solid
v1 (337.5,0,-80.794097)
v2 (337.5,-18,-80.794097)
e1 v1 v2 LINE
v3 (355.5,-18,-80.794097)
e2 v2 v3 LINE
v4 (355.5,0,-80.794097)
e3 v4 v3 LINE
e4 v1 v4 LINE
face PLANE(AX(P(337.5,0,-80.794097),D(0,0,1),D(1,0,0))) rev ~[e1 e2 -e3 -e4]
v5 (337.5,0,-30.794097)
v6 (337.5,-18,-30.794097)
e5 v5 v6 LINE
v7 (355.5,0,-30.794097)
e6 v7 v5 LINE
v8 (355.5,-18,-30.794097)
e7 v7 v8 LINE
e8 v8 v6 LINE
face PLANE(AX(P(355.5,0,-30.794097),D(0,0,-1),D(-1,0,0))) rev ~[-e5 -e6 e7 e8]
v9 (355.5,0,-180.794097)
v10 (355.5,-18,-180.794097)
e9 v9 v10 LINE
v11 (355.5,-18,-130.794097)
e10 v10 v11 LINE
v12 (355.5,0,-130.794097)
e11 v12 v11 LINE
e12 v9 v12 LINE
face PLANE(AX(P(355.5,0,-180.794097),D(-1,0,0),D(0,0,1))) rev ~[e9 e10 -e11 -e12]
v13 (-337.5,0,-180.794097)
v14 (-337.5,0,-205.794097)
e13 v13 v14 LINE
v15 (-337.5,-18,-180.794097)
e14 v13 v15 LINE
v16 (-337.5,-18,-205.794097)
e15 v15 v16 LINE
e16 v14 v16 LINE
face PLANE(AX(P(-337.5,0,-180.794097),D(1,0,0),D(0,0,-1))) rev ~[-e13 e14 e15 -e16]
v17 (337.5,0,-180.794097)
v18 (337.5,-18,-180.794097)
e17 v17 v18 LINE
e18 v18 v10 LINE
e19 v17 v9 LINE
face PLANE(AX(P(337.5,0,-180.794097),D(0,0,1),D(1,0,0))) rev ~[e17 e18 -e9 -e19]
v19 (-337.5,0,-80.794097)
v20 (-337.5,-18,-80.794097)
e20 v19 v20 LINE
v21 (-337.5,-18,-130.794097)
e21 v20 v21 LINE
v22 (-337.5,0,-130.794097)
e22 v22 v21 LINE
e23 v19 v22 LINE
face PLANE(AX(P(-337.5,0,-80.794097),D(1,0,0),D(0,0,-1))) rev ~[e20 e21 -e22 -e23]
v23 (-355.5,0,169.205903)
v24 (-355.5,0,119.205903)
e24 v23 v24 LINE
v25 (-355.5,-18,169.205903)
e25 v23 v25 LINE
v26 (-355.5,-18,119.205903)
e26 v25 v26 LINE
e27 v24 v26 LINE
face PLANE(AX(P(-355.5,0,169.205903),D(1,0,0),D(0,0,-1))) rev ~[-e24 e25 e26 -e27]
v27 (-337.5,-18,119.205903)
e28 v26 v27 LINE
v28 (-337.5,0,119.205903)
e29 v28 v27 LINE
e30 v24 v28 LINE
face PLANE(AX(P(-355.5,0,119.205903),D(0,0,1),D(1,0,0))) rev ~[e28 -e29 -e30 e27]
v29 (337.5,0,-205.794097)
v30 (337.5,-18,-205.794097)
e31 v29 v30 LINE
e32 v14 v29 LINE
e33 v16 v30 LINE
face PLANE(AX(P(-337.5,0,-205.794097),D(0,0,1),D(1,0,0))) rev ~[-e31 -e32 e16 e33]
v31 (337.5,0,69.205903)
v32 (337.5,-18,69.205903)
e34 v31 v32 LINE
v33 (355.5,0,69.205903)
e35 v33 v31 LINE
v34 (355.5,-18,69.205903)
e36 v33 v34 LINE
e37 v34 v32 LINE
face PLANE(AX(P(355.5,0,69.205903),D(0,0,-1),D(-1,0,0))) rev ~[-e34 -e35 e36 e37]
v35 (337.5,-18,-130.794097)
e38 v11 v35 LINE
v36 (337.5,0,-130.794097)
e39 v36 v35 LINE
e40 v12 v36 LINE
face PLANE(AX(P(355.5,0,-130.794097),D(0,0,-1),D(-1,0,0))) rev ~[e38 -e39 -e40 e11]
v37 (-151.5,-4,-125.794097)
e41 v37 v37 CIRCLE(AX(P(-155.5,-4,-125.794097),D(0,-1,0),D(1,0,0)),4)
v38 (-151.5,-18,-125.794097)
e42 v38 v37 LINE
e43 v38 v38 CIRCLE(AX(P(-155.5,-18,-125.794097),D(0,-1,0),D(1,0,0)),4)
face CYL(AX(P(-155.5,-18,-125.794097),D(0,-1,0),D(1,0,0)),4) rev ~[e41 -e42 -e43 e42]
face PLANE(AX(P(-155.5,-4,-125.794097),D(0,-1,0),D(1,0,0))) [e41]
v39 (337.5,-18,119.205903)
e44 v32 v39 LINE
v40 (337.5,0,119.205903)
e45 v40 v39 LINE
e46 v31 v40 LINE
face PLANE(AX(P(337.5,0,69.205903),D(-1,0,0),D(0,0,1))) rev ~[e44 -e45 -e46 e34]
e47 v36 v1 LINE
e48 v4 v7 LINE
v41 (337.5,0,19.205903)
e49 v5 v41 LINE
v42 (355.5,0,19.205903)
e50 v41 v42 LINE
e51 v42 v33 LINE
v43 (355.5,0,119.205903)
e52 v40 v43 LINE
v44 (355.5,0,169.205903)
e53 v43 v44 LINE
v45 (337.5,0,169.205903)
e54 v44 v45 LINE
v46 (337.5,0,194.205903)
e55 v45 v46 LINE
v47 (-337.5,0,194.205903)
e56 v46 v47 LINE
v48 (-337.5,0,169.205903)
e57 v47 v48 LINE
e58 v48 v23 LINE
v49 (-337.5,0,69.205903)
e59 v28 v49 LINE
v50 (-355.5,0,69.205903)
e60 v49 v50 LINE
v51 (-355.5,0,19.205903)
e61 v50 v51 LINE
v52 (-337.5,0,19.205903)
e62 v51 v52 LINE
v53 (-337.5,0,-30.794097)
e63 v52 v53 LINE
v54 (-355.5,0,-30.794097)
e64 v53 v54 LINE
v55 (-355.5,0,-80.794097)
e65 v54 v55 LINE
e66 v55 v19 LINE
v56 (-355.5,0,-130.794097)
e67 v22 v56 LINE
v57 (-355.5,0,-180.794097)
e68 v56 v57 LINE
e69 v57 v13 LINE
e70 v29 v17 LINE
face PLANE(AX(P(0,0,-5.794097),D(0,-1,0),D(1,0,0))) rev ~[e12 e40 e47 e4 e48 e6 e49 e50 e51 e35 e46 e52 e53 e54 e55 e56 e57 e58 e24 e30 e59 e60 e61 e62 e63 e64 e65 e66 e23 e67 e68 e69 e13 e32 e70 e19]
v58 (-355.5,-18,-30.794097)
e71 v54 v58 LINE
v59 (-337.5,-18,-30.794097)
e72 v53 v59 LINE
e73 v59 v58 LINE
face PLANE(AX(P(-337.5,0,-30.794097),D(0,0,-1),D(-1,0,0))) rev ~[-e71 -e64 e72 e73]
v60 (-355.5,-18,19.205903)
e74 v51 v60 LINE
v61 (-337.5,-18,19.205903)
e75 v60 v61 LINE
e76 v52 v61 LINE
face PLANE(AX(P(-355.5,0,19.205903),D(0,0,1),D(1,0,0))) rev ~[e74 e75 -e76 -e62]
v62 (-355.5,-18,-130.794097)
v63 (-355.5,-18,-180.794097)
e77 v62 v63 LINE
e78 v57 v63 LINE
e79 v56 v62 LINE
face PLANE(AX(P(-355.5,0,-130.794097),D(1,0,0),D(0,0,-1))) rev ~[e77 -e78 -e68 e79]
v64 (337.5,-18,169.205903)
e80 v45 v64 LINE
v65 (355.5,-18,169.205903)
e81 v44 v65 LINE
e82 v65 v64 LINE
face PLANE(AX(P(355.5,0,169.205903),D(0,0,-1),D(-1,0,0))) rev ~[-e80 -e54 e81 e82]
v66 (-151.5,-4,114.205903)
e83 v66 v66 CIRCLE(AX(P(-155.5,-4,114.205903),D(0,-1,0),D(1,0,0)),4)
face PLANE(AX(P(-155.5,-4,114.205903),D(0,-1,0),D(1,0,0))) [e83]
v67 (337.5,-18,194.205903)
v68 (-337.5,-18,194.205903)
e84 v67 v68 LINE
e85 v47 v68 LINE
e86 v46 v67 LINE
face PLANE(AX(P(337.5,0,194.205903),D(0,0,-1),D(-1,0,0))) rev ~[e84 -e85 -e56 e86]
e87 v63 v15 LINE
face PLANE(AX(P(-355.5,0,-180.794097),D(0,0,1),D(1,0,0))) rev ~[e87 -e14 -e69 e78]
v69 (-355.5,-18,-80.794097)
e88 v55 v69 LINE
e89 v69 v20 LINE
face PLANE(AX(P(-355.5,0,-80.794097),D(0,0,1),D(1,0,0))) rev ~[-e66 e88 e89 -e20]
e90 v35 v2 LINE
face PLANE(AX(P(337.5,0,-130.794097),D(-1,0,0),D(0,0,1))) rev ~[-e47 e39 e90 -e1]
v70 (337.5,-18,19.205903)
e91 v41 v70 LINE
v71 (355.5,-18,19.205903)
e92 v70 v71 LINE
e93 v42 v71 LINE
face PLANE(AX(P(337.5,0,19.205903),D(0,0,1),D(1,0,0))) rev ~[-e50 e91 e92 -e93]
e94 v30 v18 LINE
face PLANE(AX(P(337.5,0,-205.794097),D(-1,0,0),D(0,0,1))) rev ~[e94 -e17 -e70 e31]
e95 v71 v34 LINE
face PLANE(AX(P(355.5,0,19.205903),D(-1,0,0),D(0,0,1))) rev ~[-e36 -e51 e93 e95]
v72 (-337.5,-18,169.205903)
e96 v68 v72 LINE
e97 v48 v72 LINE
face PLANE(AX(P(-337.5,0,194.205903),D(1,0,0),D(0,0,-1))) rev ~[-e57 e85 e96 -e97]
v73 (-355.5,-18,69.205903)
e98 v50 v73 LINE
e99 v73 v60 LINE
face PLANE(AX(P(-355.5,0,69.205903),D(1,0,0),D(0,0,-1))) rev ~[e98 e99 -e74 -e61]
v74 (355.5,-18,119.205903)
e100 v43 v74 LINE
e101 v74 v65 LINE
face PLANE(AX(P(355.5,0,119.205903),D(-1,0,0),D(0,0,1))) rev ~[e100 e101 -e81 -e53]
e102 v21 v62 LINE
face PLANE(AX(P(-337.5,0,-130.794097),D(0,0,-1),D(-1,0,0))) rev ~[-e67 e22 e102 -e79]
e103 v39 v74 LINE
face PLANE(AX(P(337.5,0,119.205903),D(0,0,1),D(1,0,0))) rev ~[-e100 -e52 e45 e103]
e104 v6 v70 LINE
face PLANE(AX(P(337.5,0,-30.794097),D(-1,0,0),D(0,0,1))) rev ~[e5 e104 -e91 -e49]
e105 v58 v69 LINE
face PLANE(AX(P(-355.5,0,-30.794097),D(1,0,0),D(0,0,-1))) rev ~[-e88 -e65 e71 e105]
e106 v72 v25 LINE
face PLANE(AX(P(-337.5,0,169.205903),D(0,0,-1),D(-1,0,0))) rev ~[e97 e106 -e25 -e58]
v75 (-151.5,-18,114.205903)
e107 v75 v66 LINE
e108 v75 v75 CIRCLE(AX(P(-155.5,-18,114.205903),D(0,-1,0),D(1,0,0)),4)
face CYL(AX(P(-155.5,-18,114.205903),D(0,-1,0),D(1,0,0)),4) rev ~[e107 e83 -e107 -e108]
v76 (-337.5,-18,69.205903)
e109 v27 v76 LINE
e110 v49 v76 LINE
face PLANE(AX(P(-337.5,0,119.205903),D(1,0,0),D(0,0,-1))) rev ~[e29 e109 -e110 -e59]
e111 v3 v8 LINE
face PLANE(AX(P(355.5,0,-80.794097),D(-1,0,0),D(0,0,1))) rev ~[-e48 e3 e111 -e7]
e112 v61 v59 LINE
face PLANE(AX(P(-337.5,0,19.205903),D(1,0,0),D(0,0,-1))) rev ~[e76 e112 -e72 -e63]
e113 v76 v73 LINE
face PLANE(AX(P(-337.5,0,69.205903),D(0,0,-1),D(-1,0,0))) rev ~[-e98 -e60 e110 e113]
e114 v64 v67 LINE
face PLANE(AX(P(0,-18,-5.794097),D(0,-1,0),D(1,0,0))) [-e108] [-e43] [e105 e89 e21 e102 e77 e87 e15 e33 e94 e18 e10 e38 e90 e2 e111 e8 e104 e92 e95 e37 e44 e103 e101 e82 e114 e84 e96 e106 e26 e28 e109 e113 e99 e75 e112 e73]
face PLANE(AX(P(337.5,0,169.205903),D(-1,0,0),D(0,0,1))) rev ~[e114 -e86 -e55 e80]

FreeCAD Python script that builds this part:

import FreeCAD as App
import Part
import Sketcher
from FreeCAD import Vector


def add_polygon(sketch, points):
    """Adds a closed chain of lines whose ends are joined by coincident constraints."""
    first, n = sketch.GeometryCount, len(points)
    for a, b in zip(points, points[1:] + points[:1]):
        sketch.addGeometry(Part.LineSegment(App.Vector(*a, 0), App.Vector(*b, 0)), False)
    for i in range(n):
        sketch.addConstraint(Sketcher.Constraint("Coincident", first + i, 2, first + (i + 1) % n, 1))

doc = App.newDocument("Part")
body = doc.addObject("PartDesign::Body", "Body")

sketch1 = body.newObject("Sketcher::SketchObject", "Sketch")
sketch1.AttachmentSupport = (doc.getObject("XZ_Plane"), [""])
sketch1.MapMode = "FlatFace"
add_polygon(sketch1, [(337.5, 194.205903), (-337.5, 194.205903), (-337.5, 169.205903), (-355.5, 169.205903), (-355.5, 119.205903), (-337.5, 119.205903), (-337.5, 69.205903), (-355.5, 69.205903), (-355.5, 19.205903), (-337.5, 19.205903), (-337.5, -30.794097), (-355.5, -30.794097), (-355.5, -80.794097), (-337.5, -80.794097), (-337.5, -130.794097), (-355.5, -130.794097), (-355.5, -180.794097), (-337.5, -180.794097), (-337.5, -205.794097), (337.5, -205.794097), (337.5, -180.794097), (355.5, -180.794097), (355.5, -130.794097), (337.5, -130.794097), (337.5, -80.794097), (355.5, -80.794097), (355.5, -30.794097), (337.5, -30.794097), (337.5, 19.205903), (355.5, 19.205903), (355.5, 69.205903), (337.5, 69.205903), (337.5, 119.205903), (355.5, 119.205903), (355.5, 169.205903), (337.5, 169.205903)])
sketch1.addConstraint([
    Sketcher.Constraint("Horizontal", 0),
    Sketcher.Constraint("Vertical", 1),
    Sketcher.Constraint("Horizontal", 2),
    Sketcher.Constraint("Vertical", 3),
    Sketcher.Constraint("Horizontal", 4),
    Sketcher.Constraint("Vertical", 5),
    Sketcher.Constraint("Horizontal", 6),
    Sketcher.Constraint("Vertical", 7),
    Sketcher.Constraint("Horizontal", 8),
    Sketcher.Constraint("Vertical", 9),
    Sketcher.Constraint("Horizontal", 10),
    Sketcher.Constraint("Vertical", 11),
    Sketcher.Constraint("Horizontal", 12),
    Sketcher.Constraint("Vertical", 13),
    Sketcher.Constraint("Horizontal", 14),
    Sketcher.Constraint("Vertical", 15),
    Sketcher.Constraint("Horizontal", 16),
    Sketcher.Constraint("Vertical", 17),
    Sketcher.Constraint("Horizontal", 18),
    Sketcher.Constraint("Vertical", 19),
    Sketcher.Constraint("Horizontal", 20),
    Sketcher.Constraint("Vertical", 21),
    Sketcher.Constraint("Horizontal", 22),
    Sketcher.Constraint("Vertical", 23),
    Sketcher.Constraint("Horizontal", 24),
    Sketcher.Constraint("Vertical", 25),
    Sketcher.Constraint("Horizontal", 26),
    Sketcher.Constraint("Vertical", 27),
    Sketcher.Constraint("Horizontal", 28),
    Sketcher.Constraint("Vertical", 29),
    Sketcher.Constraint("Horizontal", 30),
    Sketcher.Constraint("Vertical", 31),
    Sketcher.Constraint("Horizontal", 32),
    Sketcher.Constraint("Vertical", 33),
    Sketcher.Constraint("Horizontal", 34),
    Sketcher.Constraint("Vertical", 35),
    Sketcher.Constraint("Symmetric", 16, 2, 19, 2, -2),
    Sketcher.Constraint("Symmetric", 14, 2, 21, 2, -2),
    Sketcher.Constraint("Symmetric", 12, 2, 23, 2, -2),
    Sketcher.Constraint("Symmetric", 10, 2, 25, 2, -2),
    Sketcher.Constraint("Symmetric", 8, 2, 27, 2, -2),
    Sketcher.Constraint("Symmetric", 6, 2, 29, 2, -2),
    Sketcher.Constraint("Symmetric", 4, 2, 31, 2, -2),
    Sketcher.Constraint("Symmetric", 2, 2, 33, 2, -2),
    Sketcher.Constraint("Vertical", 1, 2, 4, 2),
    Sketcher.Constraint("Vertical", 3, 2, 6, 2),
    Sketcher.Constraint("Vertical", 5, 2, 8, 2),
    Sketcher.Constraint("Vertical", 7, 2, 10, 2),
    Sketcher.Constraint("Vertical", 9, 2, 12, 2),
    Sketcher.Constraint("Vertical", 11, 2, 14, 2),
    Sketcher.Constraint("Vertical", 13, 2, 16, 2),
    Sketcher.Constraint("Vertical", 31, 2, 34, 2),
    Sketcher.Constraint("Equal", 3, 5),
    Sketcher.Constraint("Equal", 5, 7),
    Sketcher.Constraint("Equal", 7, 9),
    Sketcher.Constraint("Equal", 9, 11),
    Sketcher.Constraint("Equal", 11, 13),
    Sketcher.Constraint("Equal", 13, 15),
    Sketcher.Constraint("Equal", 1, 17),
    Sketcher.Constraint("DistanceX", 0, 2, 0, 1, 675.0),
    Sketcher.Constraint("DistanceX", 2, 2, 2, 1, 18.0),
    Sketcher.Constraint("DistanceY", 1, 2, 1, 1, 25.0),
    Sketcher.Constraint("DistanceY", 3, 2, 3, 1, 50.0),
    Sketcher.Constraint("DistanceY", -1, 1, 0, 2, 194.205903),
])
pad1 = body.newObject("PartDesign::Pad", "Pad")
pad1.Profile = sketch1
pad1.Length = 18

sketch2 = body.newObject("Sketcher::SketchObject", "Sketch001")
sketch2.AttachmentSupport = (doc.getObject("XZ_Plane"), [""])
sketch2.MapMode = "FlatFace"
sketch2.AttachmentOffset = App.Placement(Vector(0, 0, 18), App.Rotation())
sketch2.addGeometry([
    Part.Circle(Vector(-155.5, -125.794097, 0), Vector(0, 0, 1), 4),
    Part.Circle(Vector(-155.5, 114.205903, 0), Vector(0, 0, 1), 4),
], False)
sketch2.addConstraint([
    Sketcher.Constraint("Equal", 0, 1),
    Sketcher.Constraint("Vertical", 0, 3, 1, 3),
    Sketcher.Constraint("Diameter", 0, 8.0),
    Sketcher.Constraint("DistanceY", 0, 3, 1, 3, 240.0),
    Sketcher.Constraint("DistanceX", 0, 3, -1, 1, 155.5),
    Sketcher.Constraint("DistanceY", 0, 3, -1, 1, 125.794097),
])
pocket1 = body.newObject("PartDesign::Pocket", "Pocket")
pocket1.Profile = sketch2
pocket1.Length = 14

doc.recompute()
